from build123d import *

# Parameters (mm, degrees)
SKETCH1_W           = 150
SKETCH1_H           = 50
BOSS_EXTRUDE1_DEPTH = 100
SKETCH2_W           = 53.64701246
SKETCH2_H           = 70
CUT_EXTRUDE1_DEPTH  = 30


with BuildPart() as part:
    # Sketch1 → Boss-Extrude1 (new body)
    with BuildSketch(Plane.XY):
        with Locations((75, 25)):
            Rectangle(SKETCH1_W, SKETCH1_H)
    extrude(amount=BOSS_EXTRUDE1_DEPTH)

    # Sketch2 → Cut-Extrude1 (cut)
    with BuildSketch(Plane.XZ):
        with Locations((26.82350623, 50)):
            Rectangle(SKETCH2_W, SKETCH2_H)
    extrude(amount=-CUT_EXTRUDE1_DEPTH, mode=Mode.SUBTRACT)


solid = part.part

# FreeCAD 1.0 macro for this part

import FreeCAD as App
import Part
import Sketcher

V = App.Vector


def add_polygon(sketch, points):
    """Adds a closed chain of lines whose ends are joined by coincident constraints."""
    first, n = sketch.GeometryCount, len(points)
    for a, b in zip(points, points[1:] + points[:1]):
        sketch.addGeometry(Part.LineSegment(App.Vector(*a, 0), App.Vector(*b, 0)), False)
    for i in range(n):
        sketch.addConstraint(Sketcher.Constraint("Coincident", first + i, 2, first + (i + 1) % n, 1))

doc = App.newDocument("Part")
body = doc.addObject("PartDesign::Body", "Body")

sketch1 = doc.addObject("Sketcher::SketchObject", "Sketch")
body.addObject(sketch1)
sketch1.AttachmentSupport = (doc.XY_Plane, [""])
sketch1.MapMode = "FlatFace"
add_polygon(sketch1, [(0, 50), (0, 0), (150, 0), (150, 50)])
sketch1.addConstraint([
    Sketcher.Constraint("Vertical", 0),
    Sketcher.Constraint("Horizontal", 1),
    Sketcher.Constraint("Vertical", 2),
    Sketcher.Constraint("Horizontal", 3),
    Sketcher.Constraint("Coincident", 0, 2, -1, 1),
    Sketcher.Constraint("DistanceX", 1, 1, 1, 2, 150.0),
    Sketcher.Constraint("DistanceY", 0, 2, 0, 1, 50.0),
])
pad1 = doc.addObject("PartDesign::Pad", "Pad")
body.addObject(pad1)
pad1.Profile = sketch1
pad1.Length = 100

sketch2 = doc.addObject("Sketcher::SketchObject", "Sketch001")
body.addObject(sketch2)
sketch2.AttachmentSupport = (doc.XZ_Plane, [""])
sketch2.MapMode = "FlatFace"
add_polygon(sketch2, [(0, 85), (0, 15), (54, 15), (54, 85)])
sketch2.addConstraint([
    Sketcher.Constraint("Vertical", 0),
    Sketcher.Constraint("Horizontal", 1),
    Sketcher.Constraint("Vertical", 2),
    Sketcher.Constraint("Horizontal", 3),
    Sketcher.Constraint("PointOnObject", 0, 2, -2),
    Sketcher.Constraint("DistanceY", 0, 2, 0, 1, 70.0),
    Sketcher.Constraint("DistanceY", -1, 1, 0, 2, 15.0),
    Sketcher.Constraint("DistanceX", 1, 1, 1, 2, 53.647012),
])
pocket1 = doc.addObject("PartDesign::Pocket", "Pocket")
body.addObject(pocket1)
pocket1.Profile = sketch2
pocket1.Length = 30

doc.recompute()
